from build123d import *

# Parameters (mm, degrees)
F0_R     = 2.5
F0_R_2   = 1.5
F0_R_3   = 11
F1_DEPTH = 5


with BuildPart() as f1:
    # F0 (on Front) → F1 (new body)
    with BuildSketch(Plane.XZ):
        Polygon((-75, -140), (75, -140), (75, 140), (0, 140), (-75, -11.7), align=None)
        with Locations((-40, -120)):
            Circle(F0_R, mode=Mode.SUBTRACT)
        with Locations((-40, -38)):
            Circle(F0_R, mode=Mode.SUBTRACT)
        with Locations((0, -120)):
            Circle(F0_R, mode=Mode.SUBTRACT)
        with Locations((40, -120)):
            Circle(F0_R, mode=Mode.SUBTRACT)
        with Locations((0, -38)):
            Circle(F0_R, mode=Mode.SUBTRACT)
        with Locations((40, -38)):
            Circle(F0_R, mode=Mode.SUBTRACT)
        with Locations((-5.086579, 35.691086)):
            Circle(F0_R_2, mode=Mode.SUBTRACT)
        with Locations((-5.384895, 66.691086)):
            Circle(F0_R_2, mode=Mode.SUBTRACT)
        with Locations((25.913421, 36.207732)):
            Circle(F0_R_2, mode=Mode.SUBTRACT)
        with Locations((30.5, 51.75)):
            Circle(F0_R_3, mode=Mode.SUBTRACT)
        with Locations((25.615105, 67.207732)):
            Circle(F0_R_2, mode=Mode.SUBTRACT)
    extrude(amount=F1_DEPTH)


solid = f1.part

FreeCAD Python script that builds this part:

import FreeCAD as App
import Part
import Sketcher


def add_polygon(sketch, points):
    """Adds a closed chain of lines whose ends are joined by coincident constraints."""
    first, n = sketch.GeometryCount, len(points)
    for a, b in zip(points, points[1:] + points[:1]):
        sketch.addGeometry(Part.LineSegment(App.Vector(*a, 0), App.Vector(*b, 0)), False)
    for i in range(n):
        sketch.addConstraint(Sketcher.Constraint("Coincident", first + i, 2, first + (i + 1) % n, 1))

doc = App.newDocument("Part")
body = doc.addObject("PartDesign::Body", "Body")

# Sketch on XZ plane
sketch1 = doc.addObject("Sketcher::SketchObject", "Sketch")
body.addObject(sketch1)
sketch1.AttachmentSupport = (doc.XZ_Plane, [""])
sketch1.MapMode = "FlatFace"
add_polygon(sketch1, [(-75, -140), (75, -140), (75, 140), (0, 140), (-75, -11.7)])  # lines 0-4
sketch1.addGeometry(Part.Circle(App.Vector(-40, -120, 0), App.Vector(0, 0, 1), 2.5), False)  # 5
sketch1.addGeometry(Part.Circle(App.Vector(-40, -38, 0), App.Vector(0, 0, 1), 2.5), False)  # 6
sketch1.addGeometry(Part.Circle(App.Vector(0, -120, 0), App.Vector(0, 0, 1), 2.5), False)  # 7
sketch1.addGeometry(Part.Circle(App.Vector(40, -120, 0), App.Vector(0, 0, 1), 2.5), False)  # 8
sketch1.addGeometry(Part.Circle(App.Vector(0, -38, 0), App.Vector(0, 0, 1), 2.5), False)  # 9
sketch1.addGeometry(Part.Circle(App.Vector(40, -38, 0), App.Vector(0, 0, 1), 2.5), False)  # 10
sketch1.addGeometry(Part.Circle(App.Vector(-5.1, 35.7, 0), App.Vector(0, 0, 1), 1.5), False)  # 11
sketch1.addGeometry(Part.Circle(App.Vector(-5.4, 66.7, 0), App.Vector(0, 0, 1), 1.5), False)  # 12
sketch1.addGeometry(Part.Circle(App.Vector(25.9, 36.2, 0), App.Vector(0, 0, 1), 1.5), False)  # 13
sketch1.addGeometry(Part.Circle(App.Vector(30.5, 51.8, 0), App.Vector(0, 0, 1), 11), False)  # 14
sketch1.addGeometry(Part.Circle(App.Vector(25.6, 67.2, 0), App.Vector(0, 0, 1), 1.5), False)  # 15
sketch1.addConstraint([
    Sketcher.Constraint("Horizontal", 0),
    Sketcher.Constraint("Vertical", 1),
    Sketcher.Constraint("Horizontal", 2),
    Sketcher.Constraint("Vertical", 4),
    Sketcher.Constraint("Equal", 5, 6),
    Sketcher.Constraint("Equal", 6, 7),
    Sketcher.Constraint("Equal", 7, 8),
    Sketcher.Constraint("Equal", 8, 9),
    Sketcher.Constraint("Equal", 9, 10),
    Sketcher.Constraint("Equal", 11, 12),
    Sketcher.Constraint("Equal", 12, 13),
    Sketcher.Constraint("Equal", 13, 15),
    Sketcher.Constraint("Symmetric", 1, 2, 4, 2, -1, 1),
    Sketcher.Constraint("Symmetric", 5, 3, 8, 3, -2),
    Sketcher.Constraint("Symmetric", 6, 3, 10, 3, -2),
    Sketcher.Constraint("PointOnObject", 7, 3, -2),
    Sketcher.Constraint("PointOnObject", 9, 3, -2),
    Sketcher.Constraint("PointOnObject", 2, 2, -2),
    Sketcher.Constraint("Horizontal", 5, 3, 7, 3),
    Sketcher.Constraint("Horizontal", 6, 3, 9, 3),
    Sketcher.Constraint("Vertical", 5, 3, 6, 3),
    Sketcher.Constraint("Diameter", 5, 5.0),
    Sketcher.Constraint("Diameter", 11, 3.0),
    Sketcher.Constraint("Diameter", 14, 22.0),
    Sketcher.Constraint("DistanceX", 0, 1, 0, 2, 150.0),
    Sketcher.Constraint("DistanceY", 1, 1, 1, 2, 280.0),
    Sketcher.Constraint("DistanceY", 4, 2, 4, 1, 128.3),
    Sketcher.Constraint("DistanceX", 5, 3, -1, 1, 40.0),
    Sketcher.Constraint("DistanceY", 5, 3, -1, 1, 120.0),
    Sketcher.Constraint("DistanceY", 6, 3, -1, 1, 38.0),
    Sketcher.Constraint("DistanceY", 11, 3, 12, 3, 31.0),
    Sketcher.Constraint("DistanceX", 11, 3, 13, 3, 31.0),
    Sketcher.Constraint("DistanceY", 13, 3, 15, 3, 31.0),
    Sketcher.Constraint("DistanceX", 12, 3, 15, 3, 31.0),
    Sketcher.Constraint("DistanceX", -1, 1, 14, 3, 30.5),
    Sketcher.Constraint("DistanceY", -1, 1, 14, 3, 51.75),
    Sketcher.Constraint("DistanceX", 11, 3, -1, 1, 5.086579),
    Sketcher.Constraint("DistanceY", -1, 1, 15, 3, 67.207732),
    Sketcher.Constraint("DistanceY", -1, 1, 11, 3, 35.691086),
    Sketcher.Constraint("DistanceX", 12, 3, -1, 1, 5.384895),
])
pad1 = doc.addObject("PartDesign::Pad", "Pad")
body.addObject(pad1)
pad1.Profile = sketch1
pad1.Length = 5

doc.recompute()
